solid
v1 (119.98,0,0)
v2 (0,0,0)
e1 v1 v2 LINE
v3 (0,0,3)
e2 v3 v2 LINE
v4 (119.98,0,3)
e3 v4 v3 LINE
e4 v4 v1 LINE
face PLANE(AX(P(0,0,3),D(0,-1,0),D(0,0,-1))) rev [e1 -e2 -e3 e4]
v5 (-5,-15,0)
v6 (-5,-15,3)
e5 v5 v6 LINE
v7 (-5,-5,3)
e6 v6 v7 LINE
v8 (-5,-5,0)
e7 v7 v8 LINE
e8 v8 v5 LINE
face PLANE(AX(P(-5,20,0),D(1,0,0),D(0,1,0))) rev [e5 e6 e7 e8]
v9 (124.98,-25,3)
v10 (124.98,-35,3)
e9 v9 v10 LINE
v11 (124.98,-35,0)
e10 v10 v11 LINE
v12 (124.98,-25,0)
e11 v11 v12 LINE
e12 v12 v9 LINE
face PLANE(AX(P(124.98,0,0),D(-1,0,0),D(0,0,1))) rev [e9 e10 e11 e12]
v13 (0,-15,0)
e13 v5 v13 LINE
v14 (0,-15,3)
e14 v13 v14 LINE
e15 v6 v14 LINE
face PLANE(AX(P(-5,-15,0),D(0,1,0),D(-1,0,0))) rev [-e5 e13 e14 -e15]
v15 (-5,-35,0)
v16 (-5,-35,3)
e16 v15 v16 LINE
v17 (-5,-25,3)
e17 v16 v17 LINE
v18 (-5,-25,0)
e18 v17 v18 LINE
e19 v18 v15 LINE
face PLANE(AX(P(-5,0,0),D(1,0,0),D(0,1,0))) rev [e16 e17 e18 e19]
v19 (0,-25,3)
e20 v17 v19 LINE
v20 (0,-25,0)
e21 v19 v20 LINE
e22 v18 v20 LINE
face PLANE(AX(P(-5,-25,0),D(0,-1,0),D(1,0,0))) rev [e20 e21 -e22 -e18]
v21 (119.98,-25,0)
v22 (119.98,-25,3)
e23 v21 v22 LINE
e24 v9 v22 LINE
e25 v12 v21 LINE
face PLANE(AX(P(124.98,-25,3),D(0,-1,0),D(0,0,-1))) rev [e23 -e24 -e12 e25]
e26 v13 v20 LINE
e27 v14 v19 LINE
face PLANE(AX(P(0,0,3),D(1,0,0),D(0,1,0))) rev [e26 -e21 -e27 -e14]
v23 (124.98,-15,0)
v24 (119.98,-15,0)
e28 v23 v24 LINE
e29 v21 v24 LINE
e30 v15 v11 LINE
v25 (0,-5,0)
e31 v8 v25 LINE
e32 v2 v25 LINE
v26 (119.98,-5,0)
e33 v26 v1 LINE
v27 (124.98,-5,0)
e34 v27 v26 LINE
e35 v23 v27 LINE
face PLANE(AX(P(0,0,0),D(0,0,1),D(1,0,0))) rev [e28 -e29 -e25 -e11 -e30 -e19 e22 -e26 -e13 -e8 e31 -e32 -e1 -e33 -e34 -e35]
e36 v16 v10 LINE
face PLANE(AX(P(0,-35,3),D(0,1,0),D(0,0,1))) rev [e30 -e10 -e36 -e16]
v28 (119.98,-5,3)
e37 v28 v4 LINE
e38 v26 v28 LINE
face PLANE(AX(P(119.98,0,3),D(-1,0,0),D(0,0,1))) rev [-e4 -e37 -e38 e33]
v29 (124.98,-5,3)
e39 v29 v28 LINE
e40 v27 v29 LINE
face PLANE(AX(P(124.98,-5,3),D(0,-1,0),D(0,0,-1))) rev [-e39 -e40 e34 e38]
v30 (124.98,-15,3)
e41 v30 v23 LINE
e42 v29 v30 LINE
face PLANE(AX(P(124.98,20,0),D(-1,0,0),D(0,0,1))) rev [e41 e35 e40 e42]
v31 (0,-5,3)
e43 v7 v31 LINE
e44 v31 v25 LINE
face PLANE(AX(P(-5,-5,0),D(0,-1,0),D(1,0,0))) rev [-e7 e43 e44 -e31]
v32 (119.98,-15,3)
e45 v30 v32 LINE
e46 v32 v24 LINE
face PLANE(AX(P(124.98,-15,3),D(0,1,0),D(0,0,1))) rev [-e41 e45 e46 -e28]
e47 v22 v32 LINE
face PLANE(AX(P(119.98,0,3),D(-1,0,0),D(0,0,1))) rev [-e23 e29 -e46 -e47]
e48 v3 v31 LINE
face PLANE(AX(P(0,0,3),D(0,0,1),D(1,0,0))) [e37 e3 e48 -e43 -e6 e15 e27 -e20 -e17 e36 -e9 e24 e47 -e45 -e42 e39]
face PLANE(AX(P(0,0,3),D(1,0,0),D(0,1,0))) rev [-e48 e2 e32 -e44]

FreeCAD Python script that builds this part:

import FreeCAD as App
import Part
import Sketcher
Q = App.Units.Quantity

doc = App.newDocument("Part")
body = doc.addObject("PartDesign::Body", "Body")

sketch1 = body.newObject("Sketcher::SketchObject", "Sketch")
sketch1.AttachmentSupport = (doc.getObject("XY_Plane"), [""])
sketch1.MapMode = "FlatFace"
sketch1.addGeometry([
    Part.LineSegment(App.Vector(0, 0, 0), App.Vector(0, -35, 0)),
    Part.LineSegment(App.Vector(0, -35, 0), App.Vector(119.98, -35, 0)),
    Part.LineSegment(App.Vector(119.98, -35, 0), App.Vector(119.98, 0, 0)),
    Part.LineSegment(App.Vector(119.98, 0, 0), App.Vector(0, 0, 0)),
], False)
sketch1.addConstraint([
    Sketcher.Constraint("Coincident", 0, 2, 1, 1),
    Sketcher.Constraint("Coincident", 1, 2, 2, 1),
    Sketcher.Constraint("Coincident", 2, 2, 3, 1),
    Sketcher.Constraint("Coincident", 3, 2, 0, 1),
    Sketcher.Constraint("Vertical", 0),
    Sketcher.Constraint("Horizontal", 1),
    Sketcher.Constraint("Vertical", 2),
    Sketcher.Constraint("Horizontal", 3),
    Sketcher.Constraint("Coincident", 3, 2, -1, 1),
    Sketcher.Constraint("DistanceY", 0, 2, 0, 1, Q("35 mm")),
    Sketcher.Constraint("DistanceX", 1, 1, 1, 2, Q("119.98 mm")),
])
pad1 = body.newObject("PartDesign::Pad", "Pad")
pad1.Profile = sketch1
pad1.Length = 3

sketch2 = body.newObject("Sketcher::SketchObject", "Sketch001")
sketch2.AttachmentSupport = (doc.getObject("YZ_Plane"), [""])
sketch2.MapMode = "FlatFace"
sketch2.addGeometry([
    Part.LineSegment(App.Vector(-25, 0, 0), App.Vector(-35, 0, 0)),
    Part.LineSegment(App.Vector(-35, 0, 0), App.Vector(-35, 3, 0)),
    Part.LineSegment(App.Vector(-35, 3, 0), App.Vector(-25, 3, 0)),
    Part.LineSegment(App.Vector(-25, 3, 0), App.Vector(-25, 0, 0)),
], False)
sketch2.addConstraint([
    Sketcher.Constraint("Coincident", 0, 2, 1, 1),
    Sketcher.Constraint("Coincident", 1, 2, 2, 1),
    Sketcher.Constraint("Coincident", 2, 2, 3, 1),
    Sketcher.Constraint("Coincident", 3, 2, 0, 1),
    Sketcher.Constraint("Horizontal", 0),
    Sketcher.Constraint("Vertical", 1),
    Sketcher.Constraint("Horizontal", 2),
    Sketcher.Constraint("Vertical", 3),
    Sketcher.Constraint("PointOnObject", 0, 2, -1),
    Sketcher.Constraint("DistanceX", 0, 2, 0, 1, Q("10 mm")),
    Sketcher.Constraint("DistanceY", 1, 1, 1, 2, Q("3 mm")),
    Sketcher.Constraint("DistanceX", 0, 2, -1, 1, Q("35 mm")),
])
pad2 = body.newObject("PartDesign::Pad", "Pad001")
pad2.Profile = sketch2
pad2.Length = 5
pad2.Reversed = True
doc.recompute()

linearpattern = body.newObject("PartDesign::LinearPattern", "LinearPattern")
linearpattern.Originals = [pad2]
linearpattern.Direction = (doc.getObject("Y_Axis"), [""])
linearpattern.Mode = "offset"
linearpattern.Offset = 20
linearpattern.Occurrences = 2
body.Tip = linearpattern

sketch3 = body.newObject("Sketcher::SketchObject", "Sketch002")
sketch3.AttachmentSupport = (doc.getObject("YZ_Plane"), [""])
sketch3.MapMode = "FlatFace"
sketch3.AttachmentOffset = App.Placement(App.Vector(0, 0, 119.98), App.Rotation())
sketch3.addGeometry([
    Part.LineSegment(App.Vector(-25, 3, 0), App.Vector(-35, 3, 0)),
    Part.LineSegment(App.Vector(-35, 3, 0), App.Vector(-35, 0, 0)),
    Part.LineSegment(App.Vector(-35, 0, 0), App.Vector(-25, 0, 0)),
    Part.LineSegment(App.Vector(-25, 0, 0), App.Vector(-25, 3, 0)),
], False)
sketch3.addConstraint([
    Sketcher.Constraint("Coincident", 0, 2, 1, 1),
    Sketcher.Constraint("Coincident", 1, 2, 2, 1),
    Sketcher.Constraint("Coincident", 2, 2, 3, 1),
    Sketcher.Constraint("Coincident", 3, 2, 0, 1),
    Sketcher.Constraint("Horizontal", 0),
    Sketcher.Constraint("Vertical", 1),
    Sketcher.Constraint("Horizontal", 2),
    Sketcher.Constraint("Vertical", 3),
    Sketcher.Constraint("PointOnObject", 1, 2, -1),
    Sketcher.Constraint("DistanceX", 0, 2, 0, 1, Q("10 mm")),
    Sketcher.Constraint("DistanceY", 1, 2, 1, 1, Q("3 mm")),
    Sketcher.Constraint("DistanceX", 0, 2, -1, 1, Q("35 mm")),
])
pad3 = body.newObject("PartDesign::Pad", "Pad002")
pad3.Profile = sketch3
pad3.Length = 5
doc.recompute()

linearpattern2 = body.newObject("PartDesign::LinearPattern", "LinearPattern001")
linearpattern2.Originals = [pad3]
linearpattern2.Direction = (doc.getObject("Y_Axis"), [""])
linearpattern2.Mode = "offset"
linearpattern2.Offset = 20
linearpattern2.Occurrences = 2
body.Tip = linearpattern2

doc.recompute()
